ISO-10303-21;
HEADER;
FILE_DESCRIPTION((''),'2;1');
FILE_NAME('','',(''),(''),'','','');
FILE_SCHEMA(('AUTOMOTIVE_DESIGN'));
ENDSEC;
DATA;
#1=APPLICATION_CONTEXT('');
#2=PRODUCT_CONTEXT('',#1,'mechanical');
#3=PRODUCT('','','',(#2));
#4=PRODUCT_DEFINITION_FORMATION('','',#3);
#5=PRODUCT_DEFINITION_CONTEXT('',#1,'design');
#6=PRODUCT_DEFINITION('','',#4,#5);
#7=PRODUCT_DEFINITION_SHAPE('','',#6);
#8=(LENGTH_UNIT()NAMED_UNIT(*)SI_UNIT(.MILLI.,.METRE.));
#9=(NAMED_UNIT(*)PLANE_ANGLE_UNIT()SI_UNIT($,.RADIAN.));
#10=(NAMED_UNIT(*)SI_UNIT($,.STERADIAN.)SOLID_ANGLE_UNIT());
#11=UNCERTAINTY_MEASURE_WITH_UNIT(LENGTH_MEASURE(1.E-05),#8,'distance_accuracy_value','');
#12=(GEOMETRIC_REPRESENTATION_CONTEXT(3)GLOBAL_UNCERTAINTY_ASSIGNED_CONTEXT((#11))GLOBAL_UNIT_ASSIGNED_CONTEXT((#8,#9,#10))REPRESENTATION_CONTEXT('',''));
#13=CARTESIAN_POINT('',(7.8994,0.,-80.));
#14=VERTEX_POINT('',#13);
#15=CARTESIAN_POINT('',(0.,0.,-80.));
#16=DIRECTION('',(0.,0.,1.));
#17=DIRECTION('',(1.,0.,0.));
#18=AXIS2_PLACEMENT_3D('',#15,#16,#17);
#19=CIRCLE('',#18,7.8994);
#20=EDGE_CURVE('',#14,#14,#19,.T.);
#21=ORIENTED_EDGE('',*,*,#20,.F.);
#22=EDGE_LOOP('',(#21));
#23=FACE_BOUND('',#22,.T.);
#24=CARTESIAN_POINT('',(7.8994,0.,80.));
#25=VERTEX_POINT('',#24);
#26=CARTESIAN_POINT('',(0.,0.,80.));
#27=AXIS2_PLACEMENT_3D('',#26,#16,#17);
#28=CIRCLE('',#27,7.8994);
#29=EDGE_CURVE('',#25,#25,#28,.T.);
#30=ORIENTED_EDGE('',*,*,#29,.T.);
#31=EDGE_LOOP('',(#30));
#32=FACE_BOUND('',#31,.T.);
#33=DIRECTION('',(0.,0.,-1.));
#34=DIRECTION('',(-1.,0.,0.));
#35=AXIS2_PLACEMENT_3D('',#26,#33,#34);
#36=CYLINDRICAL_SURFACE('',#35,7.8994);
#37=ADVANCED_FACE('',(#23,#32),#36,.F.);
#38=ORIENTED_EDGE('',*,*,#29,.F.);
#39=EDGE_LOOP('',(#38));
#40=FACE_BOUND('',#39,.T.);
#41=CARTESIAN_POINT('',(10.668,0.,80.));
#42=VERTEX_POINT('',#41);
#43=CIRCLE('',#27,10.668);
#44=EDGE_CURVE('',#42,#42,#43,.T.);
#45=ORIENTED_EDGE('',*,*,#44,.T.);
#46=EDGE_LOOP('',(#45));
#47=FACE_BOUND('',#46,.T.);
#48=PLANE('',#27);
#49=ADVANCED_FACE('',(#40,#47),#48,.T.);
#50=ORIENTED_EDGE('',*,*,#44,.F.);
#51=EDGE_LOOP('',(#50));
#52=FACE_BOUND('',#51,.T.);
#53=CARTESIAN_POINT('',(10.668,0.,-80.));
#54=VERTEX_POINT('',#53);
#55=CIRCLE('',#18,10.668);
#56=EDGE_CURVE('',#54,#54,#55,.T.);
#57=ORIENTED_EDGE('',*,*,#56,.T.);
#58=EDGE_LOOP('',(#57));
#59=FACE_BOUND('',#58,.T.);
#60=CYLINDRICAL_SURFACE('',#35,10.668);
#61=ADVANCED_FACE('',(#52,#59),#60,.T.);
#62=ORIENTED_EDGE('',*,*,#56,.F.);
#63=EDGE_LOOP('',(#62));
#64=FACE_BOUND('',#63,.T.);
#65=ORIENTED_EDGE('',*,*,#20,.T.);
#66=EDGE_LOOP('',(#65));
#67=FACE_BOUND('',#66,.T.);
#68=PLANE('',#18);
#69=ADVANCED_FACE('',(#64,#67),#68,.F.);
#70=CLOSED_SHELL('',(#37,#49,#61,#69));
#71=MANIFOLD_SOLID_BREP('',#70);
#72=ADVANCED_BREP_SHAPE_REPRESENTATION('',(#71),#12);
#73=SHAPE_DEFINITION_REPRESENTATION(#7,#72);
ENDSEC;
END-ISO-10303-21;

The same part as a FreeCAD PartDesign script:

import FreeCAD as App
import Part
import Sketcher

V = App.Vector
Q = App.Units.Quantity

doc = App.newDocument("Part")
body = doc.addObject("PartDesign::Body", "Body")

sketch1 = body.newObject("Sketcher::SketchObject", "Sketch")
sketch1.AttachmentSupport = (doc.getObject("XY_Plane"), [""])
sketch1.MapMode = "FlatFace"
sketch1.addGeometry([
    Part.Circle(V(0, 0, 0), V(0, 0, 1), 11),
    Part.Circle(V(0, 0, 0), V(0, 0, 1), 8),
], False)
sketch1.addConstraint([
    Sketcher.Constraint("Coincident", 0, 3, -1, 1),
    Sketcher.Constraint("Coincident", 1, 3, -1, 1),
    Sketcher.Constraint("Diameter", 0, Q("0.84 in")),
    Sketcher.Constraint("Diameter", 1, Q("0.622 in")),
])
pad1 = body.newObject("PartDesign::Pad", "Pad")
pad1.Profile = sketch1
pad1.Length = 160
pad1.Midplane = True

doc.recompute()
